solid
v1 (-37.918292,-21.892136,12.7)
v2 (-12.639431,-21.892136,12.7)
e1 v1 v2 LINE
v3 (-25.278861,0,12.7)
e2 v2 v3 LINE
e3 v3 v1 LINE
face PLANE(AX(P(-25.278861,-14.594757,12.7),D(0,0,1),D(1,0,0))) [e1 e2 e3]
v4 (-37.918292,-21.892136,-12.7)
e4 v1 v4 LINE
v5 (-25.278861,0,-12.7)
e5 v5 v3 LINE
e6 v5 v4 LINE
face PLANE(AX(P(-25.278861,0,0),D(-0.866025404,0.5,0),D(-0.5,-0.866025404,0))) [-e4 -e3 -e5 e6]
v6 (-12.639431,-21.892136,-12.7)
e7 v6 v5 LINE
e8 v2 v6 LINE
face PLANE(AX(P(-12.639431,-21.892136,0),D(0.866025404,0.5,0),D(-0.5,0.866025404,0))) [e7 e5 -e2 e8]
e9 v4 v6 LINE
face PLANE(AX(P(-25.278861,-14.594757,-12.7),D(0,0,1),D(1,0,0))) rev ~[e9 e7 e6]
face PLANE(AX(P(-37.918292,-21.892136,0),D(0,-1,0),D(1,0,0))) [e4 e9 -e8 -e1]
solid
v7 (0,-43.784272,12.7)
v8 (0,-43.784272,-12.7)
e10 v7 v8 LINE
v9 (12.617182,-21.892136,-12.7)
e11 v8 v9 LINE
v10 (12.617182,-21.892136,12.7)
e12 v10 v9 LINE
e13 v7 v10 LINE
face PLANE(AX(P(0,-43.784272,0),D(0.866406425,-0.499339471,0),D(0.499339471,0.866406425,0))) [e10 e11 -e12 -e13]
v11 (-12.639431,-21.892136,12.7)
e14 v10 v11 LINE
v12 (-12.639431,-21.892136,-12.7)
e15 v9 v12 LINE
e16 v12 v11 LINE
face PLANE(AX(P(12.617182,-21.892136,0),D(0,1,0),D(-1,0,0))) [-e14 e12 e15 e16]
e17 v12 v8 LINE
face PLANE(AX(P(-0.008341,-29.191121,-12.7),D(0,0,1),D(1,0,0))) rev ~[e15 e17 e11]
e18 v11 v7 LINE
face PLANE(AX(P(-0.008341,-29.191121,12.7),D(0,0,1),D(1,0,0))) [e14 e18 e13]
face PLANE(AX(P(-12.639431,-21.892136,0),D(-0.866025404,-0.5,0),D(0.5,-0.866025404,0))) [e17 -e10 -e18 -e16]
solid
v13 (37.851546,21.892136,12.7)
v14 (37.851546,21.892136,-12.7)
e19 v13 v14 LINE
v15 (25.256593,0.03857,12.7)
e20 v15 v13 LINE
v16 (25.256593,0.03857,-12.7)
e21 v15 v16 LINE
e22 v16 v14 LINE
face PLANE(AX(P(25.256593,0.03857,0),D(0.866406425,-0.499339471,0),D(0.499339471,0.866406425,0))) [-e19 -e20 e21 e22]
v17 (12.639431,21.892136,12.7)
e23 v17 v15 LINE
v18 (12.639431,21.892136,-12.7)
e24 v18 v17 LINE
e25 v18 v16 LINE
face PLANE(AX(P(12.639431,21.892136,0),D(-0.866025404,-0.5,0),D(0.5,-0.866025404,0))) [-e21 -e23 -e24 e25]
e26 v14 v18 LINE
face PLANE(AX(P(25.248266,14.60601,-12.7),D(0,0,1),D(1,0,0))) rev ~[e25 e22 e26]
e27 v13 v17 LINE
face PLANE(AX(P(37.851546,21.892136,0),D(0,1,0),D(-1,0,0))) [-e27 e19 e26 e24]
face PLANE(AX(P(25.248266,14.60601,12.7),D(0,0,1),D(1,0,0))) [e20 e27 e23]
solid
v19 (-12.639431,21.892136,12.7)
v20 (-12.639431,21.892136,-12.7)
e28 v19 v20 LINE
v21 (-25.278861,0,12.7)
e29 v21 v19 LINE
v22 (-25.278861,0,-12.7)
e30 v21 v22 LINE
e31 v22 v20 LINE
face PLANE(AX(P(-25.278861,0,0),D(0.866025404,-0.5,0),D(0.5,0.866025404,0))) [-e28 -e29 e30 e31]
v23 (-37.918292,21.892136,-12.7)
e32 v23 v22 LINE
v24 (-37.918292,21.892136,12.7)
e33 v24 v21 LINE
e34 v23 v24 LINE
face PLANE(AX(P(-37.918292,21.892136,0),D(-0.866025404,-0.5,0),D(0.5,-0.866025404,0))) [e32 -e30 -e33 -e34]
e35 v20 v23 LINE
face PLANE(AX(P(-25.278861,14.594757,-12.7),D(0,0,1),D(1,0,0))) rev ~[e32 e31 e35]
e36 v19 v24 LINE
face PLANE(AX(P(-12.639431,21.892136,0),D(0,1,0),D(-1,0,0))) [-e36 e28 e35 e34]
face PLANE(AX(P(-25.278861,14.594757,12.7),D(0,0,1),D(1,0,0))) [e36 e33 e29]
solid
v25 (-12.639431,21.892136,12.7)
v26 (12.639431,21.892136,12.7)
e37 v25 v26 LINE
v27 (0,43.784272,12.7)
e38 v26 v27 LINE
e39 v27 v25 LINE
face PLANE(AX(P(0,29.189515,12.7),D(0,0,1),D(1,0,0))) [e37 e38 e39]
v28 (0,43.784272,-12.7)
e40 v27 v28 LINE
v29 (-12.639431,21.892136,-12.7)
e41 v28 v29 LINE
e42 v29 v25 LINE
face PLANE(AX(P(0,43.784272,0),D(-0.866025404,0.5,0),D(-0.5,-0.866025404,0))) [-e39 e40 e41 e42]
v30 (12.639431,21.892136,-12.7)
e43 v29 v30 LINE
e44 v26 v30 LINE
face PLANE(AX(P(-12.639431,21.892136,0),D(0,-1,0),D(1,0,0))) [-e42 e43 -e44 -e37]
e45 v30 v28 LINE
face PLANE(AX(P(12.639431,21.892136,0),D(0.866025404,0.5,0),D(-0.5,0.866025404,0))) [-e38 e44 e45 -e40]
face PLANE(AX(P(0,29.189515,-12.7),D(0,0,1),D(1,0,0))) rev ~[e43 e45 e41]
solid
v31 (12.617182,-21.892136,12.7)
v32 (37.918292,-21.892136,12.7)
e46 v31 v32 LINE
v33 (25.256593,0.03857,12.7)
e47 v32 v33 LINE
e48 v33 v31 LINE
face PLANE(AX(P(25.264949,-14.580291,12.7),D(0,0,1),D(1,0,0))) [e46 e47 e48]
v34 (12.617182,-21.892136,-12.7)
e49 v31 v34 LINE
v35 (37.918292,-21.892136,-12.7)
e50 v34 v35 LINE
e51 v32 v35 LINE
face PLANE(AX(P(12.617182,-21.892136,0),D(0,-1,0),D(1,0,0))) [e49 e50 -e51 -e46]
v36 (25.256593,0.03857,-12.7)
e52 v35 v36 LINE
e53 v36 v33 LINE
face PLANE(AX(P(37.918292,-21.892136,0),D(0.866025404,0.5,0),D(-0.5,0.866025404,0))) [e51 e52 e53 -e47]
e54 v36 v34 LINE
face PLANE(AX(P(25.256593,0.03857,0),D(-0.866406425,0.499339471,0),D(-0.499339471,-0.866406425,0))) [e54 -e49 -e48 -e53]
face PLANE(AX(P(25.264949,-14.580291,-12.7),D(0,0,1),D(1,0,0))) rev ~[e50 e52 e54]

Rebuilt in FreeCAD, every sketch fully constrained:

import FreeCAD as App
import Part
import Sketcher
Q = App.Units.Quantity


def add_polygon(sketch, points):
    """Adds a closed chain of lines whose ends are joined by coincident constraints."""
    first, n = sketch.GeometryCount, len(points)
    for a, b in zip(points, points[1:] + points[:1]):
        sketch.addGeometry(Part.LineSegment(App.Vector(*a, 0), App.Vector(*b, 0)), False)
    for i in range(n):
        sketch.addConstraint(Sketcher.Constraint("Coincident", first + i, 2, first + (i + 1) % n, 1))

doc = App.newDocument("Part")
body = doc.addObject("PartDesign::Body", "Body")

sketch1 = body.newObject("Sketcher::SketchObject", "Sketch")
sketch1.AttachmentSupport = (doc.getObject("XY_Plane"), [""])
sketch1.MapMode = "FlatFace"
add_polygon(sketch1, [(38, -22), (25, 0), (13, -22)])
sketch1.addConstraint([
    Sketcher.Constraint("Horizontal", 2),
    Sketcher.Constraint("Angle", 0, Q("120 deg")),
    Sketcher.Constraint("DistanceX", 2, 1, 2, 2, Q("25.30111 mm")),
    Sketcher.Constraint("DistanceX", 0, 2, 2, 2, Q("12.661699 mm")),
    Sketcher.Constraint("DistanceY", -1, 1, 0, 2, Q("0.03857 mm")),
    Sketcher.Constraint("DistanceX", -1, 1, 2, 2, Q("37.918292 mm")),
])
pad1 = body.newObject("PartDesign::Pad", "Pad")
pad1.Profile = sketch1
pad1.Length = Q("1 in")
pad1.Midplane = True
body2 = doc.addObject("PartDesign::Body", "Body001")

sketch2 = body2.newObject("Sketcher::SketchObject", "Sketch001")
sketch2.AttachmentSupport = (doc.getObject("XY_Plane001"), [""])
sketch2.MapMode = "FlatFace"
add_polygon(sketch2, [(38, 22), (13, 22), (25, 0)])
sketch2.addConstraint([
    Sketcher.Constraint("Horizontal", 0),
    Sketcher.Constraint("Angle", 1, Q("-60 deg")),
    Sketcher.Constraint("DistanceX", 0, 2, 0, 1, Q("25.212116 mm")),
    Sketcher.Constraint("DistanceX", -1, 1, 0, 2, Q("12.639431 mm")),
    Sketcher.Constraint("DistanceY", -1, 1, 1, 2, Q("0.03857 mm")),
    Sketcher.Constraint("Distance", 1, Q("25.234325 mm")),
])
pad2 = body2.newObject("PartDesign::Pad", "Pad001")
pad2.Profile = sketch2
pad2.Length = Q("1 in")
pad2.Midplane = True
body3 = doc.addObject("PartDesign::Body", "Body002")

sketch3 = body3.newObject("Sketcher::SketchObject", "Sketch002")
sketch3.AttachmentSupport = (doc.getObject("XY_Plane002"), [""])
sketch3.MapMode = "FlatFace"
add_polygon(sketch3, [(0, 44), (-13, 22), (13, 22)])
sketch3.addConstraint([
    Sketcher.Constraint("Horizontal", 1),
    Sketcher.Constraint("PointOnObject", 2, 2, -2),
    Sketcher.Constraint("Equal", 0, 2),
    Sketcher.Constraint("Angle", 0, Q("-120 deg")),
    Sketcher.Constraint("DistanceX", 1, 1, 1, 2, Q("25.278861 mm")),
    Sketcher.Constraint("DistanceY", -1, 1, 2, 2, Q("43.784272 mm")),
])
pad3 = body3.newObject("PartDesign::Pad", "Pad002")
pad3.Profile = sketch3
pad3.Length = Q("1 in")
pad3.Midplane = True
body4 = doc.addObject("PartDesign::Body", "Body003")

sketch4 = body4.newObject("Sketcher::SketchObject", "Sketch003")
sketch4.AttachmentSupport = (doc.getObject("XY_Plane003"), [""])
sketch4.MapMode = "FlatFace"
add_polygon(sketch4, [(-13, 22), (-38, 22), (-25, 0)])
sketch4.addConstraint([
    Sketcher.Constraint("Horizontal", 0),
    Sketcher.Constraint("PointOnObject", 1, 2, -1),
    Sketcher.Constraint("Equal", 1, 2),
    Sketcher.Constraint("Angle", 1, Q("-60 deg")),
    Sketcher.Constraint("DistanceX", 0, 2, 0, 1, Q("25.278861 mm")),
    Sketcher.Constraint("DistanceX", 0, 2, -1, 1, Q("37.918292 mm")),
])
pad4 = body4.newObject("PartDesign::Pad", "Pad003")
pad4.Profile = sketch4
pad4.Length = Q("1 in")
pad4.Midplane = True
body5 = doc.addObject("PartDesign::Body", "Body004")

sketch5 = body5.newObject("Sketcher::SketchObject", "Sketch004")
sketch5.AttachmentSupport = (doc.getObject("XY_Plane004"), [""])
sketch5.MapMode = "FlatFace"
add_polygon(sketch5, [(-13, -22), (-25, 0), (-38, -22)])
sketch5.addConstraint([
    Sketcher.Constraint("Horizontal", 2),
    Sketcher.Constraint("PointOnObject", 0, 2, -1),
    Sketcher.Constraint("Equal", 0, 1),
    Sketcher.Constraint("Angle", 0, Q("120 deg")),
    Sketcher.Constraint("DistanceX", 2, 1, 2, 2, Q("25.278861 mm")),
    Sketcher.Constraint("DistanceX", 0, 2, -1, 1, Q("25.278861 mm")),
])
pad5 = body5.newObject("PartDesign::Pad", "Pad004")
pad5.Profile = sketch5
pad5.Length = Q("1 in")
pad5.Midplane = True
body6 = doc.addObject("PartDesign::Body", "Body005")

sketch6 = body6.newObject("Sketcher::SketchObject", "Sketch005")
sketch6.AttachmentSupport = (doc.getObject("XY_Plane005"), [""])
sketch6.MapMode = "FlatFace"
add_polygon(sketch6, [(13, -22), (-13, -22), (0, -44)])
sketch6.addConstraint([
    Sketcher.Constraint("Horizontal", 0),
    Sketcher.Constraint("PointOnObject", 1, 2, -2),
    Sketcher.Constraint("Angle", 1, Q("-60 deg")),
    Sketcher.Constraint("Distance", 1, Q("25.278861 mm")),
    Sketcher.Constraint("DistanceX", 0, 2, 0, 1, Q("25.256613 mm")),
    Sketcher.Constraint("DistanceY", 1, 2, -1, 1, Q("43.784272 mm")),
])
pad6 = body6.newObject("PartDesign::Pad", "Pad005")
pad6.Profile = sketch6
pad6.Length = Q("1 in")
pad6.Midplane = True

doc.recompute()
